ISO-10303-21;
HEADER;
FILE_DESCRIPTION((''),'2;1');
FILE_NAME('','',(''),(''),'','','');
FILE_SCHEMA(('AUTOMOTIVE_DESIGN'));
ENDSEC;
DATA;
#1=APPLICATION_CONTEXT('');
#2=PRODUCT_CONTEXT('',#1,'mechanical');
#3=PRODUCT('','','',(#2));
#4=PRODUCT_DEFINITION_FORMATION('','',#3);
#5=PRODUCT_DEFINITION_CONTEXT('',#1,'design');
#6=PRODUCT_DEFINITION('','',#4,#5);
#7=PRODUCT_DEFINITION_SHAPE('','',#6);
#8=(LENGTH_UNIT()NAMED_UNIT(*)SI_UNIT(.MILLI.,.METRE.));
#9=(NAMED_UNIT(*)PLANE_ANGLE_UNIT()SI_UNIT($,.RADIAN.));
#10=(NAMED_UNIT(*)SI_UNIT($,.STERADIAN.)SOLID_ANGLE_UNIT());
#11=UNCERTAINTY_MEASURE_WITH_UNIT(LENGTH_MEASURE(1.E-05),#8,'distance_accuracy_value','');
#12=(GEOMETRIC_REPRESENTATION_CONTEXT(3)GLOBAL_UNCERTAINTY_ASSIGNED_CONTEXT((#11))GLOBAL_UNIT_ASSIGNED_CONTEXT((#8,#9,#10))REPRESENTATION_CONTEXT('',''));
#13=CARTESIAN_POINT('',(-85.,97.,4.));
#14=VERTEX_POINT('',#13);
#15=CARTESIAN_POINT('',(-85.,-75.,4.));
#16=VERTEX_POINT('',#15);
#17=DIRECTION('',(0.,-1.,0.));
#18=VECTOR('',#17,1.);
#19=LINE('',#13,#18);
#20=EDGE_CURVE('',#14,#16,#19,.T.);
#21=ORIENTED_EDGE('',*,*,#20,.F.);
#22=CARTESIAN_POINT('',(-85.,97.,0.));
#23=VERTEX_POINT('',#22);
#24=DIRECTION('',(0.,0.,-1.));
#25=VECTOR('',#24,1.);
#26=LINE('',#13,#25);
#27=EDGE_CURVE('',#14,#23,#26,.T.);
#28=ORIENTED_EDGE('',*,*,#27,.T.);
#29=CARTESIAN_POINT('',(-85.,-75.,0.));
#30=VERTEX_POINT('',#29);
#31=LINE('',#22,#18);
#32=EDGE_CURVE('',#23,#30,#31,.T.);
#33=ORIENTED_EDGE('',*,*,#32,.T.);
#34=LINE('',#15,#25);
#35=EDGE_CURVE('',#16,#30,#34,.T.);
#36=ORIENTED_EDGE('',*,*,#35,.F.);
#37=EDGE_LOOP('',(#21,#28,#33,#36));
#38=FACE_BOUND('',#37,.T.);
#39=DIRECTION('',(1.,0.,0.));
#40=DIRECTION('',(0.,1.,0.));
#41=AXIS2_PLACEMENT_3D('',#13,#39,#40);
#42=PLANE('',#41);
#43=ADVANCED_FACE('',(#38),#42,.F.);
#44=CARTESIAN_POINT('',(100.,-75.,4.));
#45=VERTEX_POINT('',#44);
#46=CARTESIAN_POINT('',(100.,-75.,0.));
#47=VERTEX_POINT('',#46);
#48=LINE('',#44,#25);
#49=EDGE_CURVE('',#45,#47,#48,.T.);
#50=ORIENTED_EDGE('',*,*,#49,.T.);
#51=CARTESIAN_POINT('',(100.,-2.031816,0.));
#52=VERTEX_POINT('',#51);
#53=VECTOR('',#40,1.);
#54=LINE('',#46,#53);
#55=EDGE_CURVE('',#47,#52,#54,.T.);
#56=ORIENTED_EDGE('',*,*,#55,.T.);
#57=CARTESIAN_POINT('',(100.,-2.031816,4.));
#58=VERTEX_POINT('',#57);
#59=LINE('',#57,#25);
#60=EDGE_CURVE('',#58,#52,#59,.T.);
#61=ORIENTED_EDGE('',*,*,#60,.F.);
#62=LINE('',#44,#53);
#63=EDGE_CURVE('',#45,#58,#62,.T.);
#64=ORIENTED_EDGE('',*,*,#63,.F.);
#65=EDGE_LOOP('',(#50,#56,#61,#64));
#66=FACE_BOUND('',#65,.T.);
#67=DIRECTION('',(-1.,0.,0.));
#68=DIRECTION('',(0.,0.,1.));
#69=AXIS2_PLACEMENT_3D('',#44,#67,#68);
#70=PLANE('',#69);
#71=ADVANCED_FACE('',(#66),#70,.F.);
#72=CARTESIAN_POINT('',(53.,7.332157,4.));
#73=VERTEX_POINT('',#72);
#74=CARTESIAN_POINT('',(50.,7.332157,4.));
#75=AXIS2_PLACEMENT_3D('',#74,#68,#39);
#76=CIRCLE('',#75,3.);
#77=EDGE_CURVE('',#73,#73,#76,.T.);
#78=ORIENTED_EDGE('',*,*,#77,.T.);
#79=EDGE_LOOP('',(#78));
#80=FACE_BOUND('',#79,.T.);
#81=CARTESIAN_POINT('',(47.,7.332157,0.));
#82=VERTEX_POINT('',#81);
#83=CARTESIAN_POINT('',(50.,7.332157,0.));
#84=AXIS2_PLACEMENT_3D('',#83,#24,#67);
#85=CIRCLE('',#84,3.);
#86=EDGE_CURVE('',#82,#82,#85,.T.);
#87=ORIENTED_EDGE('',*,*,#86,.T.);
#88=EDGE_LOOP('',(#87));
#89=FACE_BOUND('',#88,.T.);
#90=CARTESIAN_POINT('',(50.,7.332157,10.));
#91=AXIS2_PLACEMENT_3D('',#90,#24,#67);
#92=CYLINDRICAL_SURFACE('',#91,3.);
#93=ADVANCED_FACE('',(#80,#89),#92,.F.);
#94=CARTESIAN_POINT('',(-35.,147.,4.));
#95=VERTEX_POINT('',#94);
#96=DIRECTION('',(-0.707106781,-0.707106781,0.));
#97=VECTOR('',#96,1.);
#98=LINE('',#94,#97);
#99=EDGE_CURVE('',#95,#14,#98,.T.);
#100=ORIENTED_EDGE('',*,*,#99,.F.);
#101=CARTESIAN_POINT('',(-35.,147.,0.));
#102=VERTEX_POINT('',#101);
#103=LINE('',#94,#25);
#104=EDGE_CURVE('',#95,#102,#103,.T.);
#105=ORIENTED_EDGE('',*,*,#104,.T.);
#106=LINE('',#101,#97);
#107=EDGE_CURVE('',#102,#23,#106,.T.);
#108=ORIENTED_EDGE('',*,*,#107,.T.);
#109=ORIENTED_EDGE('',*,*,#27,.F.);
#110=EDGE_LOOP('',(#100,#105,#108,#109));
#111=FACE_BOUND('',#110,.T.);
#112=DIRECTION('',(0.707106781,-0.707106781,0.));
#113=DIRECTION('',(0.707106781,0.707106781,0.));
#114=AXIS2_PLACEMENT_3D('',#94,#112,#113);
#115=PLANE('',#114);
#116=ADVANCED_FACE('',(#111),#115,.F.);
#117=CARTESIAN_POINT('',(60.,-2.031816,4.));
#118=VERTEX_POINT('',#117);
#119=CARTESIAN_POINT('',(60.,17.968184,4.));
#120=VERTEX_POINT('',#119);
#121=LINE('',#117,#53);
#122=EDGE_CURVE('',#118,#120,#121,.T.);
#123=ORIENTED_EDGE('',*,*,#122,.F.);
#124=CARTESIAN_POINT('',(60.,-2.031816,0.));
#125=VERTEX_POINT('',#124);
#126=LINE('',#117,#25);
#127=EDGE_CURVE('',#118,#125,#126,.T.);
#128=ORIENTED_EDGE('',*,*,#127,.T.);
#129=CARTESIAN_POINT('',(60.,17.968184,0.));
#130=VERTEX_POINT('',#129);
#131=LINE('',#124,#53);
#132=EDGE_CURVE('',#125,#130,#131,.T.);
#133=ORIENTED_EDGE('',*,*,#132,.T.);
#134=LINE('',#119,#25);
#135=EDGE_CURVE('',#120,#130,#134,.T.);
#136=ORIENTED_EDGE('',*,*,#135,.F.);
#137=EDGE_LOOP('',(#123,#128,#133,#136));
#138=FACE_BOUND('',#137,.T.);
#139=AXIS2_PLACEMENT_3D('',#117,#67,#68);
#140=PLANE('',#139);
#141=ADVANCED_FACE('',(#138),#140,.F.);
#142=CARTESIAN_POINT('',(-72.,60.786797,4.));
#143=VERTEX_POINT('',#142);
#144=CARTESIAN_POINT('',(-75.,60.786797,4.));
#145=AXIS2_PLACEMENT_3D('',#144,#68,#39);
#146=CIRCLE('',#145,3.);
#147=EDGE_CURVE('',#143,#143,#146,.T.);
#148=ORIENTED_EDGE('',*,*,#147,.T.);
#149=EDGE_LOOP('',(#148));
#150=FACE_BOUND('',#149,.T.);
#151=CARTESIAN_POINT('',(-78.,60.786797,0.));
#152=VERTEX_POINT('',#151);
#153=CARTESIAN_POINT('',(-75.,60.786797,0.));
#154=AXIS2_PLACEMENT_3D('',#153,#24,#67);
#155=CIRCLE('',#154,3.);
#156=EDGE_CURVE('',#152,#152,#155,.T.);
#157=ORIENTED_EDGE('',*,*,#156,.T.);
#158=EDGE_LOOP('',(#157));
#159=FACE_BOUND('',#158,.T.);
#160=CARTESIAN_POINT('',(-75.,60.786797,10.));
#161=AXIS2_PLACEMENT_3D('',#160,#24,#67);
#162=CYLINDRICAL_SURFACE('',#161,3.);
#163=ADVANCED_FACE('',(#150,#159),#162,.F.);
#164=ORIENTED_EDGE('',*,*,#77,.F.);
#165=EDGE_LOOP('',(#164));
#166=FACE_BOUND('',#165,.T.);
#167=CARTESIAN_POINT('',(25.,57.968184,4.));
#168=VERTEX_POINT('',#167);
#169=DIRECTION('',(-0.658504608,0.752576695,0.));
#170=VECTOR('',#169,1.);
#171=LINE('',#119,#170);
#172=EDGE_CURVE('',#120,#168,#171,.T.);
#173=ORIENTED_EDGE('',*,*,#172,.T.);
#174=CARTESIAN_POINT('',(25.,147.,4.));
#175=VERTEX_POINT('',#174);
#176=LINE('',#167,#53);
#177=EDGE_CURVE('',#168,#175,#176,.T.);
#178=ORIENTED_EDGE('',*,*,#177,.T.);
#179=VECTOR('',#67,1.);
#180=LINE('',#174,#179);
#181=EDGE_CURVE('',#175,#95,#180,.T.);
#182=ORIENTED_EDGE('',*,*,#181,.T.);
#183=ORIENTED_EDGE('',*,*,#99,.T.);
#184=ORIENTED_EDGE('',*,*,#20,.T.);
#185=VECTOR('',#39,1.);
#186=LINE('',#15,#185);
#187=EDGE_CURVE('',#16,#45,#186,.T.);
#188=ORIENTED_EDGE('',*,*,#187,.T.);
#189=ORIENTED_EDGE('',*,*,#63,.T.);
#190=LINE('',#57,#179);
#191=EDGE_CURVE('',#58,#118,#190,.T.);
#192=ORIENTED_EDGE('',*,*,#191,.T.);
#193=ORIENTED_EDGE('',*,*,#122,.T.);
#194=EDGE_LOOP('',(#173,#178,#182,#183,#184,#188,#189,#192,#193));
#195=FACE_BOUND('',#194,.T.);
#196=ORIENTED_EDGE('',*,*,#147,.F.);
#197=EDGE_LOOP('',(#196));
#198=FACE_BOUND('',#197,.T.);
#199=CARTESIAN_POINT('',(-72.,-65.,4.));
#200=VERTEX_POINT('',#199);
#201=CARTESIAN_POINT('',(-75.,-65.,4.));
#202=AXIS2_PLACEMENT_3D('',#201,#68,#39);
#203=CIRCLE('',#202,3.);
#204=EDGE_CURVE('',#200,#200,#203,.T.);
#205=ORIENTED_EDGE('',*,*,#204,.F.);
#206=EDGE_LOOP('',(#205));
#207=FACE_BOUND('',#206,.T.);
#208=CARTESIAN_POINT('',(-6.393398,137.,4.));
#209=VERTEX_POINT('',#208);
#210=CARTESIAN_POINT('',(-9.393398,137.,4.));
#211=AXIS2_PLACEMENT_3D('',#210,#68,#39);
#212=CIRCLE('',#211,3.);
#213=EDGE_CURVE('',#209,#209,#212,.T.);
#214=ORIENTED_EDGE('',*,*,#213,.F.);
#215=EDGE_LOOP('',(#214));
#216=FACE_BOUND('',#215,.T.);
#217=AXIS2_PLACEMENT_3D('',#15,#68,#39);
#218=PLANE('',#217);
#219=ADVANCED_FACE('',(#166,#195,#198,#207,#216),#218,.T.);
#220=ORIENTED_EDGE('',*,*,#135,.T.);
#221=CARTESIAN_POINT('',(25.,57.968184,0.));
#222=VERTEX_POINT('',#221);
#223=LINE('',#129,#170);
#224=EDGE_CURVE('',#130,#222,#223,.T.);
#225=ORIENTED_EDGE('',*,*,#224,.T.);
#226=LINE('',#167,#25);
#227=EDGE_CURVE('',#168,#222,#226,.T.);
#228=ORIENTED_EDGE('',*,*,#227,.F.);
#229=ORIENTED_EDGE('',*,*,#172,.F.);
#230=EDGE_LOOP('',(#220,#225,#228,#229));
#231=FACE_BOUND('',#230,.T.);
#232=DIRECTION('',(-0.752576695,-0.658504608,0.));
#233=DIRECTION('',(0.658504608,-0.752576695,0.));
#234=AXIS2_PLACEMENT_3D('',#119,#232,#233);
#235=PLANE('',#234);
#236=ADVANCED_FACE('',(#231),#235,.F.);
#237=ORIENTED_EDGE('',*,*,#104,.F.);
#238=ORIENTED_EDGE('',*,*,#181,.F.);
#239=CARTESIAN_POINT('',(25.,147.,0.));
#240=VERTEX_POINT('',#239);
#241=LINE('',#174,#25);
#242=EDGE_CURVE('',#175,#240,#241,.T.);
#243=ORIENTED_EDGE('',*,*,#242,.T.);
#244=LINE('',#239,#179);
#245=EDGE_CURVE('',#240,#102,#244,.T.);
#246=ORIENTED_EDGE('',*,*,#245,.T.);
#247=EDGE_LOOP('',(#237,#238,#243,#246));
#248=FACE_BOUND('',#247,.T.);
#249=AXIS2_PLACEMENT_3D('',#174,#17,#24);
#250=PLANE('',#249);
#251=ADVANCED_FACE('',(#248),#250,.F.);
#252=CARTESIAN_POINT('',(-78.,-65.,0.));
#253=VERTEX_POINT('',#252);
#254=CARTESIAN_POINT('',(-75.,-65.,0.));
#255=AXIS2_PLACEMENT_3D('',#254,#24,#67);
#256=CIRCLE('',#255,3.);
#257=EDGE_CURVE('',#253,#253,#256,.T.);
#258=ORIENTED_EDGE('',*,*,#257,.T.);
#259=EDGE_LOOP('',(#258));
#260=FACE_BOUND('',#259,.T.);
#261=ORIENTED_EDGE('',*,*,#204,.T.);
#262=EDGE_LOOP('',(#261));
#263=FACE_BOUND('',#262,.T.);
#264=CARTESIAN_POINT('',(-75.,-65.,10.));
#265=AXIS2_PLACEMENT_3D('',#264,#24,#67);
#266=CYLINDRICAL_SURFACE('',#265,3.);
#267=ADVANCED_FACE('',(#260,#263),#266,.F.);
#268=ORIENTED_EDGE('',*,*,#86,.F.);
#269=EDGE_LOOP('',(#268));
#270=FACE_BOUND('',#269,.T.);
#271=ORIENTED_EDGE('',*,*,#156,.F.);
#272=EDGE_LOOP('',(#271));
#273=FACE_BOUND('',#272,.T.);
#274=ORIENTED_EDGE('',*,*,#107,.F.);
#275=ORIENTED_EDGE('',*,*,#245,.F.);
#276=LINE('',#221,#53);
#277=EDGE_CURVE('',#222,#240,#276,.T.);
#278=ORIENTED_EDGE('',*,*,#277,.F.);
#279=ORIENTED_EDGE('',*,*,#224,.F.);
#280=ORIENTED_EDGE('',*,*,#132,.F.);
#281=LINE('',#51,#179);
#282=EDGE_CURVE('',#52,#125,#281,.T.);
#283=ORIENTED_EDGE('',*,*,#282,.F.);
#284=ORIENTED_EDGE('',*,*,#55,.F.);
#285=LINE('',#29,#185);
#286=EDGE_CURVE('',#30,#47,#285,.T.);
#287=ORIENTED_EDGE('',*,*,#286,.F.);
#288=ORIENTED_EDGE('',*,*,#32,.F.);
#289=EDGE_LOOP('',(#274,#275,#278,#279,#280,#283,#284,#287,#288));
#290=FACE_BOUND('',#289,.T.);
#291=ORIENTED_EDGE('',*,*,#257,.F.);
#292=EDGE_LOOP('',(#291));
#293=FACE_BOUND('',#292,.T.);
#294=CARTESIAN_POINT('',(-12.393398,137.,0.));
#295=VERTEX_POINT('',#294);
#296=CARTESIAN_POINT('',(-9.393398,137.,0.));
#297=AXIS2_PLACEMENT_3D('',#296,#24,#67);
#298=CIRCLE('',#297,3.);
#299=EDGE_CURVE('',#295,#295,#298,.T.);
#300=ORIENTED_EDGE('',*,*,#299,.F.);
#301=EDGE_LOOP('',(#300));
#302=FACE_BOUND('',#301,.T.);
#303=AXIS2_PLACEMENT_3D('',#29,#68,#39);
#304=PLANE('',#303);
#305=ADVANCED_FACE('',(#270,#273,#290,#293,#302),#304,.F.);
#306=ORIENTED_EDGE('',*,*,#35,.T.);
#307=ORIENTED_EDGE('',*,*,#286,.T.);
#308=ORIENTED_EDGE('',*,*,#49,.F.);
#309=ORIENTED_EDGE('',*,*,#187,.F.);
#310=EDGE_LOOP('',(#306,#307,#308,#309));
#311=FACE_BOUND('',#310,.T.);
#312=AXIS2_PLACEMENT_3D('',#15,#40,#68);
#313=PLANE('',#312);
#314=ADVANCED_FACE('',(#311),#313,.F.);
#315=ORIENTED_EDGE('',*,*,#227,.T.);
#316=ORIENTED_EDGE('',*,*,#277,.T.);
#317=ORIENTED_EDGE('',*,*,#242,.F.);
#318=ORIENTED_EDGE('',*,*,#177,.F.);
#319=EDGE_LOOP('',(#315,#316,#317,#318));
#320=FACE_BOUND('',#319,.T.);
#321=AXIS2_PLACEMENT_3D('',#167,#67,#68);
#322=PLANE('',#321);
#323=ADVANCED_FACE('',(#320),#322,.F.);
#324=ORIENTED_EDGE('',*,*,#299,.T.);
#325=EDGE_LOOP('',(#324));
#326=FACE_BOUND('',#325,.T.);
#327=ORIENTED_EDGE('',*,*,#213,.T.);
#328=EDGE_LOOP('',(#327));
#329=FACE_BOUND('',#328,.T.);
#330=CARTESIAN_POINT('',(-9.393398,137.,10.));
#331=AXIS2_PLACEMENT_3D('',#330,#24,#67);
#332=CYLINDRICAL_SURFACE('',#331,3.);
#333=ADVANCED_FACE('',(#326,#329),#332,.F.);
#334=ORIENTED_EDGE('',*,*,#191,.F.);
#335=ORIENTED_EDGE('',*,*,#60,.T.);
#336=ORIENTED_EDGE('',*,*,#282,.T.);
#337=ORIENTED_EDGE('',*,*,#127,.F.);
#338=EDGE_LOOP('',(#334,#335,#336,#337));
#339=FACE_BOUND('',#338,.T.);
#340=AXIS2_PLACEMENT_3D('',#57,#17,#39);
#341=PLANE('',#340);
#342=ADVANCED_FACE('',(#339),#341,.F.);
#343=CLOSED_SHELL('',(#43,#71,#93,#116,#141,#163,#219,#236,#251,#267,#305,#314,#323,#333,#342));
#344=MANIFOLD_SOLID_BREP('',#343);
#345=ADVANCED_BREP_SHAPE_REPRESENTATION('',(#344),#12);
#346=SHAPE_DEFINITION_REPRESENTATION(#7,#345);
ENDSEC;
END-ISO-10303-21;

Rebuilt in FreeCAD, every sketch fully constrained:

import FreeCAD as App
import Part
import Sketcher
from FreeCAD import Vector
Q = App.Units.Quantity

doc = App.newDocument("Part")
params = doc.addObject("Spreadsheet::Sheet", "Params")
for row, (alias, value) in enumerate([
    ("sketch1_width", "185 mm"),
    ("sketch1_width2", "40 mm"),
    ("sketch1_width3", "60 mm"),
    ("sketch1_height", "20 mm"),
    ("sketch1_height2", "172 mm"),
    ("pad1_length", "4 mm"),
    ("sketch2_diameter", "6 mm"),
    ("pocket1_length", "10 mm"),
], start=1):
    params.set(f"A{row}", alias)
    params.set(f"B{row}", "=" + value)
    params.setAlias(f"B{row}", alias)

body = doc.addObject("PartDesign::Body", "Body")

sketch1 = body.newObject("Sketcher::SketchObject", "Sketch")
sketch1.AttachmentSupport = (doc.getObject("XY_Plane"), [""])
sketch1.MapMode = "FlatFace"
sketch1.addGeometry([
    Part.LineSegment(Vector(-85, -75, 0), Vector(100, -75, 0)),
    Part.LineSegment(Vector(100, -75, 0), Vector(100, -2, 0)),
    Part.LineSegment(Vector(100, -2, 0), Vector(60, -2, 0)),
    Part.LineSegment(Vector(60, -2, 0), Vector(60, 18, 0)),
    Part.LineSegment(Vector(60, 18, 0), Vector(25, 58, 0)),
    Part.LineSegment(Vector(25, 58, 0), Vector(25, 147, 0)),
    Part.LineSegment(Vector(25, 147, 0), Vector(-35, 147, 0)),
    Part.LineSegment(Vector(-35, 147, 0), Vector(-85, 97, 0)),
    Part.LineSegment(Vector(-85, 97, 0), Vector(-85, -75, 0)),
], False)
sketch1.addConstraint([
    Sketcher.Constraint("Coincident", 0, 2, 1, 1),
    Sketcher.Constraint("Coincident", 1, 2, 2, 1),
    Sketcher.Constraint("Coincident", 2, 2, 3, 1),
    Sketcher.Constraint("Coincident", 3, 2, 4, 1),
    Sketcher.Constraint("Coincident", 4, 2, 5, 1),
    Sketcher.Constraint("Coincident", 5, 2, 6, 1),
    Sketcher.Constraint("Coincident", 6, 2, 7, 1),
    Sketcher.Constraint("Coincident", 7, 2, 8, 1),
    Sketcher.Constraint("Coincident", 8, 2, 0, 1),
    Sketcher.Constraint("Horizontal", 0),
    Sketcher.Constraint("Vertical", 1),
    Sketcher.Constraint("Horizontal", 2),
    Sketcher.Constraint("Vertical", 3),
    Sketcher.Constraint("Vertical", 5),
    Sketcher.Constraint("Horizontal", 6),
    Sketcher.Constraint("Vertical", 8),
    Sketcher.Constraint("DistanceX", 0, 1, 0, 2, 185.0),
    Sketcher.Constraint("DistanceX", 2, 2, 2, 1, 40.0),
    Sketcher.Constraint("DistanceX", 6, 2, 6, 1, 60.0),
    Sketcher.Constraint("DistanceY", 3, 1, 3, 2, 20.0),
    Sketcher.Constraint("DistanceY", 8, 2, 8, 1, 172.0),
    Sketcher.Constraint("Angle", 7, Q("-135 deg")),
    Sketcher.Constraint("DistanceX", -1, 1, 0, 2, 100.0),
    Sketcher.Constraint("DistanceY", 0, 2, -1, 1, 75.0),
    Sketcher.Constraint("DistanceX", -1, 1, 4, 2, 25.0),
    Sketcher.Constraint("DistanceY", 3, 2, 4, 2, 40.0),
    Sketcher.Constraint("DistanceY", 1, 1, 1, 2, 72.968184),
])
sketch1.setExpression("Constraints[16]", "Params.sketch1_width")
sketch1.setExpression("Constraints[17]", "Params.sketch1_width2")
sketch1.setExpression("Constraints[18]", "Params.sketch1_width3")
sketch1.setExpression("Constraints[19]", "Params.sketch1_height")
sketch1.setExpression("Constraints[20]", "Params.sketch1_height2")
pad1 = body.newObject("PartDesign::Pad", "Pad")
pad1.Profile = sketch1
pad1.setExpression("Length", "Params.pad1_length")

sketch2 = body.newObject("Sketcher::SketchObject", "Sketch001")
sketch2.AttachmentSupport = (doc.getObject("XY_Plane"), [""])
sketch2.MapMode = "FlatFace"
sketch2.addGeometry([
    Part.Circle(Vector(-75, -65, 0), Vector(0, 0, 1), 3),
    Part.Circle(Vector(50, 7.3, 0), Vector(0, 0, 1), 3),
    Part.Circle(Vector(-9.4, 137, 0), Vector(0, 0, 1), 3),
    Part.Circle(Vector(-75, 60.8, 0), Vector(0, 0, 1), 3),
], False)
sketch2.addConstraint([
    Sketcher.Constraint("Equal", 0, 1),
    Sketcher.Constraint("Equal", 1, 2),
    Sketcher.Constraint("Equal", 2, 3),
    Sketcher.Constraint("Vertical", 0, 3, 3, 3),
    Sketcher.Constraint("Diameter", 0, 6.0),
    Sketcher.Constraint("DistanceX", 0, 3, -1, 1, 75.0),
    Sketcher.Constraint("DistanceY", 0, 3, -1, 1, 65.0),
    Sketcher.Constraint("DistanceX", -1, 1, 1, 3, 50.0),
    Sketcher.Constraint("DistanceY", -1, 1, 2, 3, 137.0),
    Sketcher.Constraint("DistanceX", 2, 3, -1, 1, 9.393398),
    Sketcher.Constraint("DistanceY", 1, 3, 3, 3, 53.454639),
    Sketcher.Constraint("DistanceY", -1, 1, 1, 3, 7.332157),
])
sketch2.setExpression("Constraints[4]", "Params.sketch2_diameter")
pocket1 = body.newObject("PartDesign::Pocket", "Pocket")
pocket1.Profile = sketch2
pocket1.setExpression("Length", "Params.pocket1_length")
pocket1.Reversed = True

doc.recompute()
